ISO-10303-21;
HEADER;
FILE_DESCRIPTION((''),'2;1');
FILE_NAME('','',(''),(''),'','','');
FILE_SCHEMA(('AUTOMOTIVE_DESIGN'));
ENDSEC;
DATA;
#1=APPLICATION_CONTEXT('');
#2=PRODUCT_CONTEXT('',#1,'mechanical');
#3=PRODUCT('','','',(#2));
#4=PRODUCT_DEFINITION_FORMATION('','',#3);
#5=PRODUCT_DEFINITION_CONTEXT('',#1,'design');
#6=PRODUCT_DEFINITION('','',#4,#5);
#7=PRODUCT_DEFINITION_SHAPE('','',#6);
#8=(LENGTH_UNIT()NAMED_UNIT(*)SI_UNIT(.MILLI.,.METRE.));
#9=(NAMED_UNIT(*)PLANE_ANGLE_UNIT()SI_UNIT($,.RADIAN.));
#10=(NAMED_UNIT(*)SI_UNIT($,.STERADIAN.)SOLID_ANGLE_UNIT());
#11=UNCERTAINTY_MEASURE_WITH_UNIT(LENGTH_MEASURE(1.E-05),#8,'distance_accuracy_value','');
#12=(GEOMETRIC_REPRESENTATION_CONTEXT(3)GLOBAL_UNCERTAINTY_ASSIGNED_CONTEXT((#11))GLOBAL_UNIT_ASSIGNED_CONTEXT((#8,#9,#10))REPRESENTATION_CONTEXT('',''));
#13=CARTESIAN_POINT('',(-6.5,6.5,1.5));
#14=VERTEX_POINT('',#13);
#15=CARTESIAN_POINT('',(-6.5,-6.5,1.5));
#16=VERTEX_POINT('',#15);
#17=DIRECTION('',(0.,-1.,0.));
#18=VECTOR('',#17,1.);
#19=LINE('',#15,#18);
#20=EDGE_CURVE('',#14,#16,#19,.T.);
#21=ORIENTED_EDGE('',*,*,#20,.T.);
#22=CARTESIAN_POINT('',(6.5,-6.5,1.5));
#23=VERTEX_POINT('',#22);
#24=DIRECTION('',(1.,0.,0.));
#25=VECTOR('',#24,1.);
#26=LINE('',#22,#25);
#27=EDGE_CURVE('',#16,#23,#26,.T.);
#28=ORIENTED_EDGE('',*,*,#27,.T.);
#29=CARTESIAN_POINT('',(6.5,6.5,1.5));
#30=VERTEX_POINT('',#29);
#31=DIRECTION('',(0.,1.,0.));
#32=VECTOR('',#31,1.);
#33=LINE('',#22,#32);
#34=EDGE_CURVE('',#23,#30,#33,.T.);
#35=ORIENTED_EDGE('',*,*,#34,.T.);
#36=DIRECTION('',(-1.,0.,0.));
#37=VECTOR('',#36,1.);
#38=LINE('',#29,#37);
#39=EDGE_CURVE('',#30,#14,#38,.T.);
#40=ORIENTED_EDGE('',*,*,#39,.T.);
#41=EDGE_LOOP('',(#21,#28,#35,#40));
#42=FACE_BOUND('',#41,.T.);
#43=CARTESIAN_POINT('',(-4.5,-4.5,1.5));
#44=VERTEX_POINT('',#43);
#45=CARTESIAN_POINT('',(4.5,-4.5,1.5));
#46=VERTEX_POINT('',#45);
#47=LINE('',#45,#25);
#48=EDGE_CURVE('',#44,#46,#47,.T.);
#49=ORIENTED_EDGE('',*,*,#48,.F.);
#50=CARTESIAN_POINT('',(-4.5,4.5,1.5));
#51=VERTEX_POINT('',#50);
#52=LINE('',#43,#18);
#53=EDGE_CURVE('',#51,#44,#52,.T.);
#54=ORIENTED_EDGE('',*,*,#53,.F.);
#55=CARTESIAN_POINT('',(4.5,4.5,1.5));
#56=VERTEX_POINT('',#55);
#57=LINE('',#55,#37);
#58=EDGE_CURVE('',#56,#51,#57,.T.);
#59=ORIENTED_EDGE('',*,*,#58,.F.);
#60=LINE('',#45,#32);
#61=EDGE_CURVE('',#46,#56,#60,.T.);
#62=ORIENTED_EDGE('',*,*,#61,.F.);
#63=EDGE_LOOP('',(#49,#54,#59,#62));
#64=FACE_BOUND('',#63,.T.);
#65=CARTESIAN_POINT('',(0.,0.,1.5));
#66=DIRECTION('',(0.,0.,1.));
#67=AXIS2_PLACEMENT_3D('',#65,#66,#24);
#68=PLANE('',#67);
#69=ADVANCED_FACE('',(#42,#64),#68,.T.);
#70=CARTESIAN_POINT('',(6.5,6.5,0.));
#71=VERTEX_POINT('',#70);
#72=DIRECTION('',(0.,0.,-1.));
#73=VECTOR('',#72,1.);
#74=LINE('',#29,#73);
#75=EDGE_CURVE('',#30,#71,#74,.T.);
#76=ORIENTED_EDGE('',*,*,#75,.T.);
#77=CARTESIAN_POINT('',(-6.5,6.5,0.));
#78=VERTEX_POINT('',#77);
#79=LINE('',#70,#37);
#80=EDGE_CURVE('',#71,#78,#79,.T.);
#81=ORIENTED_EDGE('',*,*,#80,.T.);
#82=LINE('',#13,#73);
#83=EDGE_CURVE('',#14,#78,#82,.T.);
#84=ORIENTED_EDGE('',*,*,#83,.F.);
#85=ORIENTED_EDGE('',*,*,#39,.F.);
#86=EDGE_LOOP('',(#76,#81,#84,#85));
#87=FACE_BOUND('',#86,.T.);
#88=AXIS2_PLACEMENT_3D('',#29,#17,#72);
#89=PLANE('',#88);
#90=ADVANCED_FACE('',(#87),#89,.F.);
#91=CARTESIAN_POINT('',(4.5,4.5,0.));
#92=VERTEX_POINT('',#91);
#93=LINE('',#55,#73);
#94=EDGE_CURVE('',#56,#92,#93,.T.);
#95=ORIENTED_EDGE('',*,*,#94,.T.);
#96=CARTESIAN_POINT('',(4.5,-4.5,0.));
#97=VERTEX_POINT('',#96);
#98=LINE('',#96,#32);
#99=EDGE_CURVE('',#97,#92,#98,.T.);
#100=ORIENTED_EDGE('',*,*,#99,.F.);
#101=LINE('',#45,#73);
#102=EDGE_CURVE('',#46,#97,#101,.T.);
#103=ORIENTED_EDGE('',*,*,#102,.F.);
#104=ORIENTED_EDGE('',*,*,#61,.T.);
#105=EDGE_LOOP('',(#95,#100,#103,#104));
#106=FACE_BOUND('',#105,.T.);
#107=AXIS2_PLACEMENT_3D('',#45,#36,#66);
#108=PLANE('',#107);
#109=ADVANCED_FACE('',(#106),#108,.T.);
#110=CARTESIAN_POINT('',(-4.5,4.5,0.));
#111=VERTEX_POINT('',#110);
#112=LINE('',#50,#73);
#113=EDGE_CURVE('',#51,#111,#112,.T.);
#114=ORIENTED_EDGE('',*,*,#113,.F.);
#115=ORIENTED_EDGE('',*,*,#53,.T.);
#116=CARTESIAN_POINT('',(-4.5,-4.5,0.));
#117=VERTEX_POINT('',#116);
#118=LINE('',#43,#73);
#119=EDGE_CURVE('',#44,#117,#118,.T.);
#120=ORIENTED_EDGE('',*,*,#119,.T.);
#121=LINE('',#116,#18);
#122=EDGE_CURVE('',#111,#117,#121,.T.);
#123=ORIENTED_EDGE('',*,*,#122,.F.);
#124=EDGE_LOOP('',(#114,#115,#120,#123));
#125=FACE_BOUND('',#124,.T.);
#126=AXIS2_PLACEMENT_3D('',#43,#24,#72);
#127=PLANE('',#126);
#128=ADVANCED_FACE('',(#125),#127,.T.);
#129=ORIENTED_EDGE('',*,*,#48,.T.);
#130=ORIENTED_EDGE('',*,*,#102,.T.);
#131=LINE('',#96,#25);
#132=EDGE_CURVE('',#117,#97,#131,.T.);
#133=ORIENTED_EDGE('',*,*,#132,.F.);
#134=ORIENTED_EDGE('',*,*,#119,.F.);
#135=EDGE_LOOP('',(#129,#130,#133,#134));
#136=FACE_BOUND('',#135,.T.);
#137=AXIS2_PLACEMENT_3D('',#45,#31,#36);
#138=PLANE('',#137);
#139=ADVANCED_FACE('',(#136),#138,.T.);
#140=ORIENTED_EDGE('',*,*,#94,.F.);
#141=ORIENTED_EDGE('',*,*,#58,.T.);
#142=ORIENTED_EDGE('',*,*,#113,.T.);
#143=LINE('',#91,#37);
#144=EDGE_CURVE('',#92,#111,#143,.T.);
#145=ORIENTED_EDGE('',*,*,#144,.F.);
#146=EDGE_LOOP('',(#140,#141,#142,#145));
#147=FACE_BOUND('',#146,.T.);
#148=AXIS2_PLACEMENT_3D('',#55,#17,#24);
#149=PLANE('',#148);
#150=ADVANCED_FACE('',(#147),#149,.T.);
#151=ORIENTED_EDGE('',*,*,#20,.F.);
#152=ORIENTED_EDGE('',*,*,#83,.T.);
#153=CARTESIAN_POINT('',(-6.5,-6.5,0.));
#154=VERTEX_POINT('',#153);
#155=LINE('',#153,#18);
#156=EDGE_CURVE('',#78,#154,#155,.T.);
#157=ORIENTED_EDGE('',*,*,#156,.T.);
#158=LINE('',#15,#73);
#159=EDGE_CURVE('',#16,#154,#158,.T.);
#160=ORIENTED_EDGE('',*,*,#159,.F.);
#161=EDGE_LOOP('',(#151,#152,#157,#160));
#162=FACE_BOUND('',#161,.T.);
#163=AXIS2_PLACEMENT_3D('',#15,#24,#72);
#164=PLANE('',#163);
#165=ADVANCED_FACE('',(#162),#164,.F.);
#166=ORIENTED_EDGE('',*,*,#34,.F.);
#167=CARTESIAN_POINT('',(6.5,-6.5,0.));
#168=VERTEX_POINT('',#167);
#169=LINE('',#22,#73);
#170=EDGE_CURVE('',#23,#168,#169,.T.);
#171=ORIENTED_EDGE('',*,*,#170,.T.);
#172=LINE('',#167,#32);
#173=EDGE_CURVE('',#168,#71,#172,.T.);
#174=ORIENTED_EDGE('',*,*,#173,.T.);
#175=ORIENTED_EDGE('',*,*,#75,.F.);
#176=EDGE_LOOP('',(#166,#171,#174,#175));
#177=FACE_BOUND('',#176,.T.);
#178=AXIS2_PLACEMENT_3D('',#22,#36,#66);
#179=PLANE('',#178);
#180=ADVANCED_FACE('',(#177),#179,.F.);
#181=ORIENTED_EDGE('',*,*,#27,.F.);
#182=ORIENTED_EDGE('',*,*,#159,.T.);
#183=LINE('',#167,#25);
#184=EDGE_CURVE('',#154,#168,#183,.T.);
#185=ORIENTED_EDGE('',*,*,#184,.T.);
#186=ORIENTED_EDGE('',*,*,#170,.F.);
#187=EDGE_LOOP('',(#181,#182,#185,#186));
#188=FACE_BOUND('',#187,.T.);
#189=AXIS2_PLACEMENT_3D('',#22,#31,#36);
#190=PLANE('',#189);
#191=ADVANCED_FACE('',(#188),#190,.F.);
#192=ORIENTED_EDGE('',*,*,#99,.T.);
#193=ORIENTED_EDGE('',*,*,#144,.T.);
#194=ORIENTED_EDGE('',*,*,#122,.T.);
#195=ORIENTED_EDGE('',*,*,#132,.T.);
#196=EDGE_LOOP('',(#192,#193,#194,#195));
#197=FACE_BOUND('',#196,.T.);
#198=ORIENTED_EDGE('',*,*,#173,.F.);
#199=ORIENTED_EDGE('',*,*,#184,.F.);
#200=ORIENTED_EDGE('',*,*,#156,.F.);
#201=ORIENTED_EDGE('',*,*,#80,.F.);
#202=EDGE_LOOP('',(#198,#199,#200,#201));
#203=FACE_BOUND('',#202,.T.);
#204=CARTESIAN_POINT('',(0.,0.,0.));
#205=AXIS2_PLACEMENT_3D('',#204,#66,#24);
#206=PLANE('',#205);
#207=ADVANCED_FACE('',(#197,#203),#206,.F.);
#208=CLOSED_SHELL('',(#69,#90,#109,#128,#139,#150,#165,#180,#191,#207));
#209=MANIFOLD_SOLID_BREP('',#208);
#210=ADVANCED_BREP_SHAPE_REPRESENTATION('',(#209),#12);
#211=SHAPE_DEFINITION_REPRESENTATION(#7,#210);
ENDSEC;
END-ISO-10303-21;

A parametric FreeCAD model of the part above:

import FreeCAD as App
import Part
import Sketcher
Q = App.Units.Quantity


def add_polygon(sketch, points):
    """Adds a closed chain of lines whose ends are joined by coincident constraints."""
    first, n = sketch.GeometryCount, len(points)
    for a, b in zip(points, points[1:] + points[:1]):
        sketch.addGeometry(Part.LineSegment(App.Vector(*a, 0), App.Vector(*b, 0)), False)
    for i in range(n):
        sketch.addConstraint(Sketcher.Constraint("Coincident", first + i, 2, first + (i + 1) % n, 1))

doc = App.newDocument("Part")
body = doc.addObject("PartDesign::Body", "Body")

sketch1 = body.newObject("Sketcher::SketchObject", "Sketch")
sketch1.AttachmentSupport = (doc.getObject("XY_Plane"), [""])
sketch1.MapMode = "FlatFace"
add_polygon(sketch1, [(-6.5, 6.5), (-6.5, -6.5), (6.5, -6.5), (6.5, 6.5)])
add_polygon(sketch1, [(4.5, -4.5), (-4.5, -4.5), (-4.5, 4.5), (4.5, 4.5)])
sketch1.addConstraint([
    Sketcher.Constraint("Vertical", 0),
    Sketcher.Constraint("Horizontal", 1),
    Sketcher.Constraint("Vertical", 2),
    Sketcher.Constraint("Horizontal", 3),
    Sketcher.Constraint("Horizontal", 4),
    Sketcher.Constraint("Vertical", 5),
    Sketcher.Constraint("Horizontal", 6),
    Sketcher.Constraint("Vertical", 7),
    Sketcher.Constraint("Symmetric", 0, 2, 2, 2, -1, 1),
    Sketcher.Constraint("Symmetric", 4, 2, 6, 2, -1, 1),
    Sketcher.Constraint("Equal", 3, 0),
    Sketcher.Constraint("Equal", 6, 5),
    Sketcher.Constraint("DistanceX", 1, 1, 1, 2, Q("13 mm")),
    Sketcher.Constraint("DistanceX", 4, 2, 4, 1, Q("9 mm")),
])
pad1 = body.newObject("PartDesign::Pad", "Pad")
pad1.Profile = sketch1
pad1.Length = 1.5

doc.recompute()
